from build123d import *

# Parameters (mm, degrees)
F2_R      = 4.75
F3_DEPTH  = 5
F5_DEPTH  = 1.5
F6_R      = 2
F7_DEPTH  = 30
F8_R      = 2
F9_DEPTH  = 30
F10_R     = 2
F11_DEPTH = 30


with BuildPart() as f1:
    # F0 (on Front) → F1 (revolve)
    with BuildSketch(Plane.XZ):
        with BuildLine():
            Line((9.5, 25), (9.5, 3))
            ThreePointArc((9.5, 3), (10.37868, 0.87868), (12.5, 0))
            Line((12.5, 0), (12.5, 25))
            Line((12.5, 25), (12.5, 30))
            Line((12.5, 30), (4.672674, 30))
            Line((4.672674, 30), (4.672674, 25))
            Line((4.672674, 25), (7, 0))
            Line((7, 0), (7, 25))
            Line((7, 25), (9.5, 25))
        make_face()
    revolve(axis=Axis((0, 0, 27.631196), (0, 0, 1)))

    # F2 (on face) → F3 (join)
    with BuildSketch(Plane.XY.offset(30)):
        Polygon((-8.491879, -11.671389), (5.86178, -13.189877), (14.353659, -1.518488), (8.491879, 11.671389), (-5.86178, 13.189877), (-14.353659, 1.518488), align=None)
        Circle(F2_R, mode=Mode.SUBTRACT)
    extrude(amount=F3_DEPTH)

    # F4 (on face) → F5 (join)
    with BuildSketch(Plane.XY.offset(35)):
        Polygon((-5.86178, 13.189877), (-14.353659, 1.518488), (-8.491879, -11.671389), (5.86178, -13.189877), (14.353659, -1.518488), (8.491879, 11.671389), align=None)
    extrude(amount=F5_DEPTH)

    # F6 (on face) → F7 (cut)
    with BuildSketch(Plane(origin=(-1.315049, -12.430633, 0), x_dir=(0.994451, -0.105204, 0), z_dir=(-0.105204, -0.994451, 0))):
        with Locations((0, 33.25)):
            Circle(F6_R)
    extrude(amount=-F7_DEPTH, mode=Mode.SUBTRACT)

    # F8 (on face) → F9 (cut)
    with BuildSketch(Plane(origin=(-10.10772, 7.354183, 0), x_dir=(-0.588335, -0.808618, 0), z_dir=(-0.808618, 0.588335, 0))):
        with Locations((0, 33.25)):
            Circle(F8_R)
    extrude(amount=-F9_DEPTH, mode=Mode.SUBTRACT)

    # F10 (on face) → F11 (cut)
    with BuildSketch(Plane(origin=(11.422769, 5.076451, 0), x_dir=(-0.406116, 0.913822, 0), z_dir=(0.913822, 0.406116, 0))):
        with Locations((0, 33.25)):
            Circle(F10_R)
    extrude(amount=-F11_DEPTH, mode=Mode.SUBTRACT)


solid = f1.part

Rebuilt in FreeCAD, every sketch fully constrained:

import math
import FreeCAD as App
import Part
import Sketcher


def add_polygon(sketch, points):
    """Adds a closed chain of lines whose ends are joined by coincident constraints."""
    first, n = sketch.GeometryCount, len(points)
    for a, b in zip(points, points[1:] + points[:1]):
        sketch.addGeometry(Part.LineSegment(App.Vector(*a, 0), App.Vector(*b, 0)), False)
    for i in range(n):
        sketch.addConstraint(Sketcher.Constraint("Coincident", first + i, 2, first + (i + 1) % n, 1))

doc = App.newDocument("Part")
body = doc.addObject("PartDesign::Body", "Body")

# Sketch on XZ plane
sketch1 = doc.addObject("Sketcher::SketchObject", "Sketch")
body.addObject(sketch1)
sketch1.AttachmentSupport = (doc.XZ_Plane, [""])
sketch1.MapMode = "FlatFace"
sketch1.addGeometry(Part.LineSegment(App.Vector(9.5, 25, 0), App.Vector(9.5, 3, 0)), False)
sketch1.addGeometry(Part.ArcOfCircle(Part.Circle(App.Vector(12.5, 3, 0), App.Vector(0, 0, 1), 3), math.radians(-180), math.radians(-90)), False)
sketch1.addGeometry(Part.LineSegment(App.Vector(12.5, 0, 0), App.Vector(12.5, 30, 0)), False)
sketch1.addGeometry(Part.LineSegment(App.Vector(12.5, 30, 0), App.Vector(4.7, 30, 0)), False)
sketch1.addGeometry(Part.LineSegment(App.Vector(4.7, 30, 0), App.Vector(4.7, 25, 0)), False)
sketch1.addGeometry(Part.LineSegment(App.Vector(4.7, 25, 0), App.Vector(7, 0, 0)), False)
sketch1.addGeometry(Part.LineSegment(App.Vector(7, 0, 0), App.Vector(7, 25, 0)), False)
sketch1.addGeometry(Part.LineSegment(App.Vector(7, 25, 0), App.Vector(9.5, 25, 0)), False)
sketch1.addConstraint(Sketcher.Constraint("Tangent", 0, 2, 1, 1))
sketch1.addConstraint(Sketcher.Constraint("Coincident", 1, 2, 2, 1))
sketch1.addConstraint(Sketcher.Constraint("Coincident", 2, 2, 3, 1))
sketch1.addConstraint(Sketcher.Constraint("Coincident", 3, 2, 4, 1))
sketch1.addConstraint(Sketcher.Constraint("Coincident", 4, 2, 5, 1))
sketch1.addConstraint(Sketcher.Constraint("Coincident", 5, 2, 6, 1))
sketch1.addConstraint(Sketcher.Constraint("Coincident", 6, 2, 7, 1))
sketch1.addConstraint(Sketcher.Constraint("Coincident", 7, 2, 0, 1))
sketch1.addConstraint(Sketcher.Constraint("Vertical", 0))
sketch1.addConstraint(Sketcher.Constraint("Vertical", 2))
sketch1.addConstraint(Sketcher.Constraint("Horizontal", 3))
sketch1.addConstraint(Sketcher.Constraint("Vertical", 4))
sketch1.addConstraint(Sketcher.Constraint("Vertical", 6))
sketch1.addConstraint(Sketcher.Constraint("Horizontal", 7))
sketch1.addConstraint(Sketcher.Constraint("PointOnObject", 1, 2, -1))
sketch1.addConstraint(Sketcher.Constraint("PointOnObject", 5, 2, -1))
sketch1.addConstraint(Sketcher.Constraint("Horizontal", 4, 2, 6, 2))
sketch1.addConstraint(Sketcher.Constraint("Radius", 1, 3.000001))
sketch1.addConstraint(Sketcher.Constraint("DistanceY", 0, 2, 0, 1, 22.0))
sketch1.addConstraint(Sketcher.Constraint("DistanceY", 2, 1, 2, 2, 30.0))
sketch1.addConstraint(Sketcher.Constraint("DistanceX", 7, 1, 7, 2, 2.5))
sketch1.addConstraint(Sketcher.Constraint("DistanceX", -1, 1, 5, 2, 7.0))
sketch1.addConstraint(Sketcher.Constraint("DistanceX", 0, 2, 1, 2, 3.0))
sketch1.addConstraint(Sketcher.Constraint("DistanceX", 3, 2, 3, 1, 7.827326))
revolution = doc.addObject("PartDesign::Revolution", "Revolution")
body.addObject(revolution)
revolution.Profile = sketch1
revolution.ReferenceAxis = (sketch1, ["V_Axis"])
revolution.Angle = 360

# Sketch on XY plane
sketch2 = doc.addObject("Sketcher::SketchObject", "Sketch001")
body.addObject(sketch2)
sketch2.AttachmentSupport = (doc.XY_Plane, [""])
sketch2.MapMode = "FlatFace"
sketch2.AttachmentOffset = App.Placement(App.Vector(0, 0, 30), App.Rotation())
add_polygon(sketch2, [(-8.5, -11.7), (5.9, -13.2), (14.4, -1.5), (8.5, 11.7), (-5.9, 13.2), (-14.4, 1.5)])  # lines 0-5
sketch2.addGeometry(Part.Circle(App.Vector(0, 0, 0), App.Vector(0, 0, 1), 4.8), False)  # 6
sketch2.addConstraint(Sketcher.Constraint("Coincident", 6, 3, -1, 1))
sketch2.addConstraint(Sketcher.Constraint("Symmetric", 0, 2, 3, 2, -1, 1))
sketch2.addConstraint(Sketcher.Constraint("Symmetric", 1, 2, 4, 2, -1, 1))
sketch2.addConstraint(Sketcher.Constraint("Symmetric", 2, 2, 5, 2, -1, 1))
sketch2.addConstraint(Sketcher.Constraint("Equal", 0, 1))
sketch2.addConstraint(Sketcher.Constraint("Equal", 1, 2))
sketch2.addConstraint(Sketcher.Constraint("Diameter", 6, 9.5))
sketch2.addConstraint(Sketcher.Constraint("DistanceX", 0, 2, 2, 2, 2.630099))
sketch2.addConstraint(Sketcher.Constraint("DistanceY", 4, 2, 2, 2, 10.152901))
sketch2.addConstraint(Sketcher.Constraint("DistanceX", -1, 1, 0, 2, 5.86178))
sketch2.addConstraint(Sketcher.Constraint("DistanceX", -1, 1, 1, 2, 14.353659))
pad1 = doc.addObject("PartDesign::Pad", "Pad")
body.addObject(pad1)
pad1.Profile = sketch2
pad1.Length = 5

# Sketch on XY plane
sketch3 = doc.addObject("Sketcher::SketchObject", "Sketch002")
body.addObject(sketch3)
sketch3.AttachmentSupport = (doc.XY_Plane, [""])
sketch3.MapMode = "FlatFace"
sketch3.AttachmentOffset = App.Placement(App.Vector(0, 0, 35), App.Rotation())
add_polygon(sketch3, [(-6, 13), (-14, 2), (-8, -12), (6, -13), (14, -2), (8, 12)])  # lines 0-5
sketch3.addConstraint(Sketcher.Constraint("Symmetric", 0, 2, 3, 2, -1, 1))
sketch3.addConstraint(Sketcher.Constraint("Symmetric", 1, 2, 4, 2, -1, 1))
sketch3.addConstraint(Sketcher.Constraint("Symmetric", 2, 2, 5, 2, -1, 1))
sketch3.addConstraint(Sketcher.Constraint("Equal", 0, 1))
sketch3.addConstraint(Sketcher.Constraint("Equal", 1, 2))
sketch3.addConstraint(Sketcher.Constraint("DistanceY", 1, 2, 3, 2, 10.152901))
sketch3.addConstraint(Sketcher.Constraint("DistanceX", 2, 2, 4, 2, 2.630099))
sketch3.addConstraint(Sketcher.Constraint("DistanceX", 0, 2, -1, 1, 14.353659))
sketch3.addConstraint(Sketcher.Constraint("DistanceY", -1, 1, 0, 2, 1.518488))
pad2 = doc.addObject("PartDesign::Pad", "Pad001")
body.addObject(pad2)
pad2.Profile = sketch3
pad2.Length = 1.5

# Sketch on an angled plane
sketch4 = doc.addObject("Sketcher::SketchObject", "Sketch003")
body.addObject(sketch4)
sketch4.Placement = App.Placement(App.Vector(-1.315049, -12.430633, 0), App.Rotation(App.Vector(0.994450665, -0.105203965, 0), App.Vector(0, 0, 0.999999999), App.Vector(-0.105203965, -0.994450665, 0), "ZXY"))
sketch4.addGeometry(Part.Circle(App.Vector(0, 33.2, 0), App.Vector(0, 0, 1), 2), False)
sketch4.addConstraint(Sketcher.Constraint("PointOnObject", 0, 3, -2))
sketch4.addConstraint(Sketcher.Constraint("Diameter", 0, 4.0))
sketch4.addConstraint(Sketcher.Constraint("DistanceY", -1, 1, 0, 3, 33.25))
pocket1 = doc.addObject("PartDesign::Pocket", "Pocket")
body.addObject(pocket1)
pocket1.Profile = sketch4
pocket1.Length = 30

# Sketch on an angled plane
sketch5 = doc.addObject("Sketcher::SketchObject", "Sketch004")
body.addObject(sketch5)
sketch5.Placement = App.Placement(App.Vector(-10.10772, 7.354183, 0), App.Rotation(App.Vector(-0.588334664, -0.808617538, 0), App.Vector(0, 0, 1), App.Vector(-0.808617538, 0.588334664, 0), "ZXY"))
sketch5.addGeometry(Part.Circle(App.Vector(0, 33.2, 0), App.Vector(0, 0, 1), 2), False)
sketch5.addConstraint(Sketcher.Constraint("PointOnObject", 0, 3, -2))
sketch5.addConstraint(Sketcher.Constraint("Diameter", 0, 4.0))
sketch5.addConstraint(Sketcher.Constraint("DistanceY", -1, 1, 0, 3, 33.25))
pocket2 = doc.addObject("PartDesign::Pocket", "Pocket001")
body.addObject(pocket2)
pocket2.Profile = sketch5
pocket2.Length = 30

# Sketch on an angled plane
sketch6 = doc.addObject("Sketcher::SketchObject", "Sketch005")
body.addObject(sketch6)
sketch6.Placement = App.Placement(App.Vector(11.422769, 5.076451, 0), App.Rotation(App.Vector(-0.406115827, 0.91382161, 0), App.Vector(0, 0, 1), App.Vector(0.91382161, 0.406115827, 0), "ZXY"))
sketch6.addGeometry(Part.Circle(App.Vector(0, 33.2, 0), App.Vector(0, 0, 1), 2), False)
sketch6.addConstraint(Sketcher.Constraint("PointOnObject", 0, 3, -2))
sketch6.addConstraint(Sketcher.Constraint("Diameter", 0, 4.0))
sketch6.addConstraint(Sketcher.Constraint("DistanceY", -1, 1, 0, 3, 33.25))
pocket3 = doc.addObject("PartDesign::Pocket", "Pocket002")
body.addObject(pocket3)
pocket3.Profile = sketch6
pocket3.Length = 30

doc.recompute()
